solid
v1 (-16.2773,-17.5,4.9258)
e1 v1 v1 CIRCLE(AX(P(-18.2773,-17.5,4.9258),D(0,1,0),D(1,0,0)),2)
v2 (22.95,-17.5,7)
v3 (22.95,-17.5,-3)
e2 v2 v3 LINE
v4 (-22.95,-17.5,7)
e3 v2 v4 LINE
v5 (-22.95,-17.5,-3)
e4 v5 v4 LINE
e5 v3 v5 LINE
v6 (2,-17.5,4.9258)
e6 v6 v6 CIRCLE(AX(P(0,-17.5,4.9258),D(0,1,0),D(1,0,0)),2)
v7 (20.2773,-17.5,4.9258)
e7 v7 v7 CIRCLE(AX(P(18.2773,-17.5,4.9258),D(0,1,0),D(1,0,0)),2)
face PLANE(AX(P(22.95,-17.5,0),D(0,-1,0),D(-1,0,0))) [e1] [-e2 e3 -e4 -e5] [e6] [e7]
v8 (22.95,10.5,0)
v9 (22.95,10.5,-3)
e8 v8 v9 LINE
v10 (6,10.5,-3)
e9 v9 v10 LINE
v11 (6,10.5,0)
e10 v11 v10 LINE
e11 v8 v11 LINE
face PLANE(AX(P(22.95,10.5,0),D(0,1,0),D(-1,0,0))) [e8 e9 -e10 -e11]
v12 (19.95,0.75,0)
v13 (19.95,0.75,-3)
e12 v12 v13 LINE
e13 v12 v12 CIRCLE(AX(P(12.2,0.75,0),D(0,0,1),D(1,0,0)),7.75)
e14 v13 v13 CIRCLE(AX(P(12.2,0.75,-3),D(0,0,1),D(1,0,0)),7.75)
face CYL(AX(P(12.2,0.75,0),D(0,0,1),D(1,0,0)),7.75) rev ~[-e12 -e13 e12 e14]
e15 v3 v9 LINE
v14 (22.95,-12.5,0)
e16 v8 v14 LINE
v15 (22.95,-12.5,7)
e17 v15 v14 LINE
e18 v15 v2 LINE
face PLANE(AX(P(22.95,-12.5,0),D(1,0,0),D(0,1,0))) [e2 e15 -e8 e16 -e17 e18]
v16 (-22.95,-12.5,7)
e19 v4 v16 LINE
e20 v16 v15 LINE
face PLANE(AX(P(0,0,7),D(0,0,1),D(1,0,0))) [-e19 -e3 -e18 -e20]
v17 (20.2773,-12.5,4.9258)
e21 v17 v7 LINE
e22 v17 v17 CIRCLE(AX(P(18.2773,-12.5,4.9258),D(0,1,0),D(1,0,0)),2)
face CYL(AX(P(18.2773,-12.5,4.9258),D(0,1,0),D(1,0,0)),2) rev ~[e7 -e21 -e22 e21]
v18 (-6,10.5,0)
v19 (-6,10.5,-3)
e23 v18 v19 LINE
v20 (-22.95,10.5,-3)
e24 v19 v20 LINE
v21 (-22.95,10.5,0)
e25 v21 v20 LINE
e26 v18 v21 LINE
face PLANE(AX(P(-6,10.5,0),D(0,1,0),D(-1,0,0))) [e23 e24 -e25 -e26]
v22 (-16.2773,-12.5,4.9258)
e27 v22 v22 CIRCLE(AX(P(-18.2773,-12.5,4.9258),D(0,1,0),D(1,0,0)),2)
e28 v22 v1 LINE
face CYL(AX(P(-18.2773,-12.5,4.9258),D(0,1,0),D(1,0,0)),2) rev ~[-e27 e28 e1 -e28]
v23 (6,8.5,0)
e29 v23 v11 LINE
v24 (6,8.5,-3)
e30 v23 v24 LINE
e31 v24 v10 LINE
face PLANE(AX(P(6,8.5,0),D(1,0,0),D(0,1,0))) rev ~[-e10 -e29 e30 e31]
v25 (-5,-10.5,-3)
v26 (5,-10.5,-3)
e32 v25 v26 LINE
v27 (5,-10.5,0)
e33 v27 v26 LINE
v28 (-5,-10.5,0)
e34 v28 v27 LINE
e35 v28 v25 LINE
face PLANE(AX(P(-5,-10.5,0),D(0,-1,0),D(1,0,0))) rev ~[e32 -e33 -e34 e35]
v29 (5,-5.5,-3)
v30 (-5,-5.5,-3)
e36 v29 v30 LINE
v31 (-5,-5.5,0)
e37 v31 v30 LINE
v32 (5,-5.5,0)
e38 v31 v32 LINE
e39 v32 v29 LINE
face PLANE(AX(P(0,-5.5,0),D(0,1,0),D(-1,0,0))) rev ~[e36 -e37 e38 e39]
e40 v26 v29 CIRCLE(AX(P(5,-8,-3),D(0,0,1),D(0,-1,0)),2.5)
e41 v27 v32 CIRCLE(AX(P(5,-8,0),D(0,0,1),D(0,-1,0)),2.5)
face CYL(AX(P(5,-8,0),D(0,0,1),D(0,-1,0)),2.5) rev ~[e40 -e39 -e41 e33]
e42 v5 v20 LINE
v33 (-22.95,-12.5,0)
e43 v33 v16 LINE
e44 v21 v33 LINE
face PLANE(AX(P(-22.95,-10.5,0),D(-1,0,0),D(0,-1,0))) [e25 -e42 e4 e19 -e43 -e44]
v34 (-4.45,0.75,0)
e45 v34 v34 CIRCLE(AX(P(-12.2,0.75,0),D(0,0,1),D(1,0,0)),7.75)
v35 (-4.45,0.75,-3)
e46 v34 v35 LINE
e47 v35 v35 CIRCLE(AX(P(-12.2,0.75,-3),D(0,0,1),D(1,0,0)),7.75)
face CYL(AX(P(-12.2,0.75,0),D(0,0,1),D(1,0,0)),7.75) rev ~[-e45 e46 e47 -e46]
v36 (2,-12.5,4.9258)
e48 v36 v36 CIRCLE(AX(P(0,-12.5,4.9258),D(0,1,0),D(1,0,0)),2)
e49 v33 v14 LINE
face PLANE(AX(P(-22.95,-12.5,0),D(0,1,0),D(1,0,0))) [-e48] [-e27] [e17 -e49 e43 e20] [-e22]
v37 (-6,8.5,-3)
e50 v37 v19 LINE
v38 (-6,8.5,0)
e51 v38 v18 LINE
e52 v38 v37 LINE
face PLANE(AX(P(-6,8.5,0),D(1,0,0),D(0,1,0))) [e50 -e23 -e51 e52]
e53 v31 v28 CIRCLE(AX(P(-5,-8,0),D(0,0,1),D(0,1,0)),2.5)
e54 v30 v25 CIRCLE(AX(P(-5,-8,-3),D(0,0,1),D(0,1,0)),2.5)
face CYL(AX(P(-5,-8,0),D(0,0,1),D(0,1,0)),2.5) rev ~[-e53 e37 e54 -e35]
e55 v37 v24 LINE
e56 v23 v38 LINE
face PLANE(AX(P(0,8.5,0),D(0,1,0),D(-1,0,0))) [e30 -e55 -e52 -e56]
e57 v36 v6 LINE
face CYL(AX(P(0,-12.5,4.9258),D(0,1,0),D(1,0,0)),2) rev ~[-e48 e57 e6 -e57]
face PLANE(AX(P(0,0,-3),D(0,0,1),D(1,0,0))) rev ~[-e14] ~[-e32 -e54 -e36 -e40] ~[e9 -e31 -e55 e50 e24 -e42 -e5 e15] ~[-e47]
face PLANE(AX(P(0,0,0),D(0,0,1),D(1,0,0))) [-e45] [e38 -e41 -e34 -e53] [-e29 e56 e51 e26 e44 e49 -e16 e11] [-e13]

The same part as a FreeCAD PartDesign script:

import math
import FreeCAD as App
import Part
import Sketcher

V = App.Vector


def add_polygon(sketch, points):
    """Adds a closed chain of lines whose ends are joined by coincident constraints."""
    first, n = sketch.GeometryCount, len(points)
    for a, b in zip(points, points[1:] + points[:1]):
        sketch.addGeometry(Part.LineSegment(App.Vector(*a, 0), App.Vector(*b, 0)), False)
    for i in range(n):
        sketch.addConstraint(Sketcher.Constraint("Coincident", first + i, 2, first + (i + 1) % n, 1))

doc = App.newDocument("Part")
params = doc.addObject("Spreadsheet::Sheet", "Params")
for row, (alias, value) in enumerate([
    ("sketch1_radius", "2.5 mm"),
    ("sketch1_height", "2 mm"),
    ("sketch1_width", "45.9 mm"),
    ("sketch1_diameter", "15.5 mm"),
    ("pad1_length", "3 mm"),
    ("sketch2_height", "5 mm"),
    ("sketch2_width", "45.9 mm"),
    ("pad2_length", "7 mm"),
    ("pad2_length2", "3 mm"),
    ("sketch3_diameter", "4 mm"),
    ("pocket1_length", "10 mm"),
], start=1):
    params.set(f"A{row}", alias)
    params.set(f"B{row}", "=" + value)
    params.setAlias(f"B{row}", alias)

body = doc.addObject("PartDesign::Body", "Body")

sketch1 = body.newObject("Sketcher::SketchObject", "Sketch")
sketch1.AttachmentSupport = (doc.getObject("XY_Plane"), [""])
sketch1.MapMode = "FlatFace"
add_polygon(sketch1, [(22.95, -12.5), (22.95, 10.5), (6, 10.5), (6, 8.5), (-6, 8.5), (-6, 10.5), (-22.95, 10.5), (-22.95, -12.5)])
sketch1.addGeometry(Part.LineSegment(V(-5, -5.5, 0), V(5, -5.5, 0)), False)
sketch1.addGeometry(Part.ArcOfCircle(Part.Circle(V(5, -8, 0), V(0, 0, 1), 2.5), math.radians(-90), math.radians(90)), False)
sketch1.addGeometry(Part.LineSegment(V(5, -10.5, 0), V(-5, -10.5, 0)), False)
sketch1.addGeometry(Part.ArcOfCircle(Part.Circle(V(-5, -8, 0), V(0, 0, 1), 2.5), math.radians(90), math.radians(270)), False)
sketch1.addGeometry(Part.Circle(V(-12.2, 0.75, 0), V(0, 0, 1), 7.75), False)
sketch1.addGeometry(Part.Circle(V(12.2, 0.75, 0), V(0, 0, 1), 7.75), False)
sketch1.addConstraint([
    Sketcher.Constraint("Tangent", 8, 2, 9, 2),
    Sketcher.Constraint("Tangent", 9, 1, 10, 1),
    Sketcher.Constraint("Tangent", 10, 2, 11, 2),
    Sketcher.Constraint("Tangent", 11, 1, 8, 1),
    Sketcher.Constraint("Vertical", 0),
    Sketcher.Constraint("Horizontal", 1),
    Sketcher.Constraint("Vertical", 2),
    Sketcher.Constraint("Horizontal", 3),
    Sketcher.Constraint("Vertical", 4),
    Sketcher.Constraint("Horizontal", 5),
    Sketcher.Constraint("Vertical", 6),
    Sketcher.Constraint("Horizontal", 7),
    Sketcher.Constraint("Horizontal", 8),
    Sketcher.Constraint("Horizontal", 10),
    Sketcher.Constraint("Equal", 12, 13),
    Sketcher.Constraint("Symmetric", 12, 3, 13, 3, -2),
    Sketcher.Constraint("Symmetric", 1, 2, 4, 2, -2),
    Sketcher.Constraint("Equal", 1, 5),
    Sketcher.Constraint("Radius", 9, 2.5),
    Sketcher.Constraint("DistanceY", 2, 2, 2, 1, 2.0),
    Sketcher.Constraint("DistanceX", 7, 1, 7, 2, 45.9),
    Sketcher.Constraint("DistanceX", -1, 1, 9, 3, 5.0),
    Sketcher.Constraint("DistanceX", 11, 3, -1, 1, 5.0),
    Sketcher.Constraint("DistanceX", -1, 1, 1, 2, 6.0),
    Sketcher.Constraint("DistanceY", 6, 2, 3, 2, 21.0),
    Sketcher.Constraint("DistanceY", 8, 2, 1, 2, 16.0),
    Sketcher.Constraint("Diameter", 12, 15.5),
    Sketcher.Constraint("DistanceY", 9, 3, -1, 1, 8.0),
    Sketcher.Constraint("DistanceX", 12, 3, -1, 1, 12.2),
    Sketcher.Constraint("DistanceY", -1, 1, 12, 3, 0.75),
])
sketch1.setExpression("Constraints[26]", "Params.sketch1_radius")
sketch1.setExpression("Constraints[27]", "Params.sketch1_height")
sketch1.setExpression("Constraints[28]", "Params.sketch1_width")
sketch1.setExpression("Constraints[34]", "Params.sketch1_diameter")
pad1 = body.newObject("PartDesign::Pad", "Pad")
pad1.Profile = sketch1
pad1.setExpression("Length", "Params.pad1_length")
pad1.Reversed = True

sketch2 = body.newObject("Sketcher::SketchObject", "Sketch001")
sketch2.AttachmentSupport = (doc.getObject("XY_Plane"), [""])
sketch2.MapMode = "FlatFace"
add_polygon(sketch2, [(22.95, -12.5), (-22.95, -12.5), (-22.95, -17.5), (22.95, -17.5)])
sketch2.addConstraint([
    Sketcher.Constraint("Horizontal", 0),
    Sketcher.Constraint("Vertical", 1),
    Sketcher.Constraint("Horizontal", 2),
    Sketcher.Constraint("Vertical", 3),
    Sketcher.Constraint("DistanceY", 1, 2, 1, 1, 5.0),
    Sketcher.Constraint("DistanceX", 0, 2, 0, 1, 45.9),
    Sketcher.Constraint("DistanceY", 0, 2, -1, 1, 12.5),
    Sketcher.Constraint("DistanceX", 0, 2, -1, 1, 22.95),
])
sketch2.setExpression("Constraints[8]", "Params.sketch2_height")
sketch2.setExpression("Constraints[9]", "Params.sketch2_width")
pad2 = body.newObject("PartDesign::Pad", "Pad001")
pad2.Profile = sketch2
pad2.Type = "TwoLengths"
pad2.setExpression("Length", "Params.pad2_length")
pad2.setExpression("Length2", "Params.pad2_length2")

sketch3 = body.newObject("Sketcher::SketchObject", "Sketch002")
sketch3.AttachmentSupport = (doc.getObject("XZ_Plane"), [""])
sketch3.MapMode = "FlatFace"
sketch3.AttachmentOffset = App.Placement(V(0, 0, 12.5), App.Rotation())
sketch3.addGeometry([
    Part.Circle(V(18.2773, 4.9258, 0), V(0, 0, 1), 2),
    Part.Circle(V(-18.2773, 4.9258, 0), V(0, 0, 1), 2),
    Part.Circle(V(0, 4.9258, 0), V(0, 0, 1), 2),
], False)
sketch3.addConstraint([
    Sketcher.Constraint("Equal", 0, 1),
    Sketcher.Constraint("Equal", 1, 2),
    Sketcher.Constraint("Symmetric", 0, 3, 1, 3, -2),
    Sketcher.Constraint("PointOnObject", 2, 3, -2),
    Sketcher.Constraint("Horizontal", 1, 3, 2, 3),
    Sketcher.Constraint("Diameter", 0, 4.0),
    Sketcher.Constraint("DistanceX", -1, 1, 0, 3, 18.2773),
    Sketcher.Constraint("DistanceY", -1, 1, 0, 3, 4.9258),
])
sketch3.setExpression("Constraints[5]", "Params.sketch3_diameter")
pocket1 = body.newObject("PartDesign::Pocket", "Pocket")
pocket1.Profile = sketch3
pocket1.setExpression("Length", "Params.pocket1_length")
pocket1.Reversed = True

doc.recompute()
